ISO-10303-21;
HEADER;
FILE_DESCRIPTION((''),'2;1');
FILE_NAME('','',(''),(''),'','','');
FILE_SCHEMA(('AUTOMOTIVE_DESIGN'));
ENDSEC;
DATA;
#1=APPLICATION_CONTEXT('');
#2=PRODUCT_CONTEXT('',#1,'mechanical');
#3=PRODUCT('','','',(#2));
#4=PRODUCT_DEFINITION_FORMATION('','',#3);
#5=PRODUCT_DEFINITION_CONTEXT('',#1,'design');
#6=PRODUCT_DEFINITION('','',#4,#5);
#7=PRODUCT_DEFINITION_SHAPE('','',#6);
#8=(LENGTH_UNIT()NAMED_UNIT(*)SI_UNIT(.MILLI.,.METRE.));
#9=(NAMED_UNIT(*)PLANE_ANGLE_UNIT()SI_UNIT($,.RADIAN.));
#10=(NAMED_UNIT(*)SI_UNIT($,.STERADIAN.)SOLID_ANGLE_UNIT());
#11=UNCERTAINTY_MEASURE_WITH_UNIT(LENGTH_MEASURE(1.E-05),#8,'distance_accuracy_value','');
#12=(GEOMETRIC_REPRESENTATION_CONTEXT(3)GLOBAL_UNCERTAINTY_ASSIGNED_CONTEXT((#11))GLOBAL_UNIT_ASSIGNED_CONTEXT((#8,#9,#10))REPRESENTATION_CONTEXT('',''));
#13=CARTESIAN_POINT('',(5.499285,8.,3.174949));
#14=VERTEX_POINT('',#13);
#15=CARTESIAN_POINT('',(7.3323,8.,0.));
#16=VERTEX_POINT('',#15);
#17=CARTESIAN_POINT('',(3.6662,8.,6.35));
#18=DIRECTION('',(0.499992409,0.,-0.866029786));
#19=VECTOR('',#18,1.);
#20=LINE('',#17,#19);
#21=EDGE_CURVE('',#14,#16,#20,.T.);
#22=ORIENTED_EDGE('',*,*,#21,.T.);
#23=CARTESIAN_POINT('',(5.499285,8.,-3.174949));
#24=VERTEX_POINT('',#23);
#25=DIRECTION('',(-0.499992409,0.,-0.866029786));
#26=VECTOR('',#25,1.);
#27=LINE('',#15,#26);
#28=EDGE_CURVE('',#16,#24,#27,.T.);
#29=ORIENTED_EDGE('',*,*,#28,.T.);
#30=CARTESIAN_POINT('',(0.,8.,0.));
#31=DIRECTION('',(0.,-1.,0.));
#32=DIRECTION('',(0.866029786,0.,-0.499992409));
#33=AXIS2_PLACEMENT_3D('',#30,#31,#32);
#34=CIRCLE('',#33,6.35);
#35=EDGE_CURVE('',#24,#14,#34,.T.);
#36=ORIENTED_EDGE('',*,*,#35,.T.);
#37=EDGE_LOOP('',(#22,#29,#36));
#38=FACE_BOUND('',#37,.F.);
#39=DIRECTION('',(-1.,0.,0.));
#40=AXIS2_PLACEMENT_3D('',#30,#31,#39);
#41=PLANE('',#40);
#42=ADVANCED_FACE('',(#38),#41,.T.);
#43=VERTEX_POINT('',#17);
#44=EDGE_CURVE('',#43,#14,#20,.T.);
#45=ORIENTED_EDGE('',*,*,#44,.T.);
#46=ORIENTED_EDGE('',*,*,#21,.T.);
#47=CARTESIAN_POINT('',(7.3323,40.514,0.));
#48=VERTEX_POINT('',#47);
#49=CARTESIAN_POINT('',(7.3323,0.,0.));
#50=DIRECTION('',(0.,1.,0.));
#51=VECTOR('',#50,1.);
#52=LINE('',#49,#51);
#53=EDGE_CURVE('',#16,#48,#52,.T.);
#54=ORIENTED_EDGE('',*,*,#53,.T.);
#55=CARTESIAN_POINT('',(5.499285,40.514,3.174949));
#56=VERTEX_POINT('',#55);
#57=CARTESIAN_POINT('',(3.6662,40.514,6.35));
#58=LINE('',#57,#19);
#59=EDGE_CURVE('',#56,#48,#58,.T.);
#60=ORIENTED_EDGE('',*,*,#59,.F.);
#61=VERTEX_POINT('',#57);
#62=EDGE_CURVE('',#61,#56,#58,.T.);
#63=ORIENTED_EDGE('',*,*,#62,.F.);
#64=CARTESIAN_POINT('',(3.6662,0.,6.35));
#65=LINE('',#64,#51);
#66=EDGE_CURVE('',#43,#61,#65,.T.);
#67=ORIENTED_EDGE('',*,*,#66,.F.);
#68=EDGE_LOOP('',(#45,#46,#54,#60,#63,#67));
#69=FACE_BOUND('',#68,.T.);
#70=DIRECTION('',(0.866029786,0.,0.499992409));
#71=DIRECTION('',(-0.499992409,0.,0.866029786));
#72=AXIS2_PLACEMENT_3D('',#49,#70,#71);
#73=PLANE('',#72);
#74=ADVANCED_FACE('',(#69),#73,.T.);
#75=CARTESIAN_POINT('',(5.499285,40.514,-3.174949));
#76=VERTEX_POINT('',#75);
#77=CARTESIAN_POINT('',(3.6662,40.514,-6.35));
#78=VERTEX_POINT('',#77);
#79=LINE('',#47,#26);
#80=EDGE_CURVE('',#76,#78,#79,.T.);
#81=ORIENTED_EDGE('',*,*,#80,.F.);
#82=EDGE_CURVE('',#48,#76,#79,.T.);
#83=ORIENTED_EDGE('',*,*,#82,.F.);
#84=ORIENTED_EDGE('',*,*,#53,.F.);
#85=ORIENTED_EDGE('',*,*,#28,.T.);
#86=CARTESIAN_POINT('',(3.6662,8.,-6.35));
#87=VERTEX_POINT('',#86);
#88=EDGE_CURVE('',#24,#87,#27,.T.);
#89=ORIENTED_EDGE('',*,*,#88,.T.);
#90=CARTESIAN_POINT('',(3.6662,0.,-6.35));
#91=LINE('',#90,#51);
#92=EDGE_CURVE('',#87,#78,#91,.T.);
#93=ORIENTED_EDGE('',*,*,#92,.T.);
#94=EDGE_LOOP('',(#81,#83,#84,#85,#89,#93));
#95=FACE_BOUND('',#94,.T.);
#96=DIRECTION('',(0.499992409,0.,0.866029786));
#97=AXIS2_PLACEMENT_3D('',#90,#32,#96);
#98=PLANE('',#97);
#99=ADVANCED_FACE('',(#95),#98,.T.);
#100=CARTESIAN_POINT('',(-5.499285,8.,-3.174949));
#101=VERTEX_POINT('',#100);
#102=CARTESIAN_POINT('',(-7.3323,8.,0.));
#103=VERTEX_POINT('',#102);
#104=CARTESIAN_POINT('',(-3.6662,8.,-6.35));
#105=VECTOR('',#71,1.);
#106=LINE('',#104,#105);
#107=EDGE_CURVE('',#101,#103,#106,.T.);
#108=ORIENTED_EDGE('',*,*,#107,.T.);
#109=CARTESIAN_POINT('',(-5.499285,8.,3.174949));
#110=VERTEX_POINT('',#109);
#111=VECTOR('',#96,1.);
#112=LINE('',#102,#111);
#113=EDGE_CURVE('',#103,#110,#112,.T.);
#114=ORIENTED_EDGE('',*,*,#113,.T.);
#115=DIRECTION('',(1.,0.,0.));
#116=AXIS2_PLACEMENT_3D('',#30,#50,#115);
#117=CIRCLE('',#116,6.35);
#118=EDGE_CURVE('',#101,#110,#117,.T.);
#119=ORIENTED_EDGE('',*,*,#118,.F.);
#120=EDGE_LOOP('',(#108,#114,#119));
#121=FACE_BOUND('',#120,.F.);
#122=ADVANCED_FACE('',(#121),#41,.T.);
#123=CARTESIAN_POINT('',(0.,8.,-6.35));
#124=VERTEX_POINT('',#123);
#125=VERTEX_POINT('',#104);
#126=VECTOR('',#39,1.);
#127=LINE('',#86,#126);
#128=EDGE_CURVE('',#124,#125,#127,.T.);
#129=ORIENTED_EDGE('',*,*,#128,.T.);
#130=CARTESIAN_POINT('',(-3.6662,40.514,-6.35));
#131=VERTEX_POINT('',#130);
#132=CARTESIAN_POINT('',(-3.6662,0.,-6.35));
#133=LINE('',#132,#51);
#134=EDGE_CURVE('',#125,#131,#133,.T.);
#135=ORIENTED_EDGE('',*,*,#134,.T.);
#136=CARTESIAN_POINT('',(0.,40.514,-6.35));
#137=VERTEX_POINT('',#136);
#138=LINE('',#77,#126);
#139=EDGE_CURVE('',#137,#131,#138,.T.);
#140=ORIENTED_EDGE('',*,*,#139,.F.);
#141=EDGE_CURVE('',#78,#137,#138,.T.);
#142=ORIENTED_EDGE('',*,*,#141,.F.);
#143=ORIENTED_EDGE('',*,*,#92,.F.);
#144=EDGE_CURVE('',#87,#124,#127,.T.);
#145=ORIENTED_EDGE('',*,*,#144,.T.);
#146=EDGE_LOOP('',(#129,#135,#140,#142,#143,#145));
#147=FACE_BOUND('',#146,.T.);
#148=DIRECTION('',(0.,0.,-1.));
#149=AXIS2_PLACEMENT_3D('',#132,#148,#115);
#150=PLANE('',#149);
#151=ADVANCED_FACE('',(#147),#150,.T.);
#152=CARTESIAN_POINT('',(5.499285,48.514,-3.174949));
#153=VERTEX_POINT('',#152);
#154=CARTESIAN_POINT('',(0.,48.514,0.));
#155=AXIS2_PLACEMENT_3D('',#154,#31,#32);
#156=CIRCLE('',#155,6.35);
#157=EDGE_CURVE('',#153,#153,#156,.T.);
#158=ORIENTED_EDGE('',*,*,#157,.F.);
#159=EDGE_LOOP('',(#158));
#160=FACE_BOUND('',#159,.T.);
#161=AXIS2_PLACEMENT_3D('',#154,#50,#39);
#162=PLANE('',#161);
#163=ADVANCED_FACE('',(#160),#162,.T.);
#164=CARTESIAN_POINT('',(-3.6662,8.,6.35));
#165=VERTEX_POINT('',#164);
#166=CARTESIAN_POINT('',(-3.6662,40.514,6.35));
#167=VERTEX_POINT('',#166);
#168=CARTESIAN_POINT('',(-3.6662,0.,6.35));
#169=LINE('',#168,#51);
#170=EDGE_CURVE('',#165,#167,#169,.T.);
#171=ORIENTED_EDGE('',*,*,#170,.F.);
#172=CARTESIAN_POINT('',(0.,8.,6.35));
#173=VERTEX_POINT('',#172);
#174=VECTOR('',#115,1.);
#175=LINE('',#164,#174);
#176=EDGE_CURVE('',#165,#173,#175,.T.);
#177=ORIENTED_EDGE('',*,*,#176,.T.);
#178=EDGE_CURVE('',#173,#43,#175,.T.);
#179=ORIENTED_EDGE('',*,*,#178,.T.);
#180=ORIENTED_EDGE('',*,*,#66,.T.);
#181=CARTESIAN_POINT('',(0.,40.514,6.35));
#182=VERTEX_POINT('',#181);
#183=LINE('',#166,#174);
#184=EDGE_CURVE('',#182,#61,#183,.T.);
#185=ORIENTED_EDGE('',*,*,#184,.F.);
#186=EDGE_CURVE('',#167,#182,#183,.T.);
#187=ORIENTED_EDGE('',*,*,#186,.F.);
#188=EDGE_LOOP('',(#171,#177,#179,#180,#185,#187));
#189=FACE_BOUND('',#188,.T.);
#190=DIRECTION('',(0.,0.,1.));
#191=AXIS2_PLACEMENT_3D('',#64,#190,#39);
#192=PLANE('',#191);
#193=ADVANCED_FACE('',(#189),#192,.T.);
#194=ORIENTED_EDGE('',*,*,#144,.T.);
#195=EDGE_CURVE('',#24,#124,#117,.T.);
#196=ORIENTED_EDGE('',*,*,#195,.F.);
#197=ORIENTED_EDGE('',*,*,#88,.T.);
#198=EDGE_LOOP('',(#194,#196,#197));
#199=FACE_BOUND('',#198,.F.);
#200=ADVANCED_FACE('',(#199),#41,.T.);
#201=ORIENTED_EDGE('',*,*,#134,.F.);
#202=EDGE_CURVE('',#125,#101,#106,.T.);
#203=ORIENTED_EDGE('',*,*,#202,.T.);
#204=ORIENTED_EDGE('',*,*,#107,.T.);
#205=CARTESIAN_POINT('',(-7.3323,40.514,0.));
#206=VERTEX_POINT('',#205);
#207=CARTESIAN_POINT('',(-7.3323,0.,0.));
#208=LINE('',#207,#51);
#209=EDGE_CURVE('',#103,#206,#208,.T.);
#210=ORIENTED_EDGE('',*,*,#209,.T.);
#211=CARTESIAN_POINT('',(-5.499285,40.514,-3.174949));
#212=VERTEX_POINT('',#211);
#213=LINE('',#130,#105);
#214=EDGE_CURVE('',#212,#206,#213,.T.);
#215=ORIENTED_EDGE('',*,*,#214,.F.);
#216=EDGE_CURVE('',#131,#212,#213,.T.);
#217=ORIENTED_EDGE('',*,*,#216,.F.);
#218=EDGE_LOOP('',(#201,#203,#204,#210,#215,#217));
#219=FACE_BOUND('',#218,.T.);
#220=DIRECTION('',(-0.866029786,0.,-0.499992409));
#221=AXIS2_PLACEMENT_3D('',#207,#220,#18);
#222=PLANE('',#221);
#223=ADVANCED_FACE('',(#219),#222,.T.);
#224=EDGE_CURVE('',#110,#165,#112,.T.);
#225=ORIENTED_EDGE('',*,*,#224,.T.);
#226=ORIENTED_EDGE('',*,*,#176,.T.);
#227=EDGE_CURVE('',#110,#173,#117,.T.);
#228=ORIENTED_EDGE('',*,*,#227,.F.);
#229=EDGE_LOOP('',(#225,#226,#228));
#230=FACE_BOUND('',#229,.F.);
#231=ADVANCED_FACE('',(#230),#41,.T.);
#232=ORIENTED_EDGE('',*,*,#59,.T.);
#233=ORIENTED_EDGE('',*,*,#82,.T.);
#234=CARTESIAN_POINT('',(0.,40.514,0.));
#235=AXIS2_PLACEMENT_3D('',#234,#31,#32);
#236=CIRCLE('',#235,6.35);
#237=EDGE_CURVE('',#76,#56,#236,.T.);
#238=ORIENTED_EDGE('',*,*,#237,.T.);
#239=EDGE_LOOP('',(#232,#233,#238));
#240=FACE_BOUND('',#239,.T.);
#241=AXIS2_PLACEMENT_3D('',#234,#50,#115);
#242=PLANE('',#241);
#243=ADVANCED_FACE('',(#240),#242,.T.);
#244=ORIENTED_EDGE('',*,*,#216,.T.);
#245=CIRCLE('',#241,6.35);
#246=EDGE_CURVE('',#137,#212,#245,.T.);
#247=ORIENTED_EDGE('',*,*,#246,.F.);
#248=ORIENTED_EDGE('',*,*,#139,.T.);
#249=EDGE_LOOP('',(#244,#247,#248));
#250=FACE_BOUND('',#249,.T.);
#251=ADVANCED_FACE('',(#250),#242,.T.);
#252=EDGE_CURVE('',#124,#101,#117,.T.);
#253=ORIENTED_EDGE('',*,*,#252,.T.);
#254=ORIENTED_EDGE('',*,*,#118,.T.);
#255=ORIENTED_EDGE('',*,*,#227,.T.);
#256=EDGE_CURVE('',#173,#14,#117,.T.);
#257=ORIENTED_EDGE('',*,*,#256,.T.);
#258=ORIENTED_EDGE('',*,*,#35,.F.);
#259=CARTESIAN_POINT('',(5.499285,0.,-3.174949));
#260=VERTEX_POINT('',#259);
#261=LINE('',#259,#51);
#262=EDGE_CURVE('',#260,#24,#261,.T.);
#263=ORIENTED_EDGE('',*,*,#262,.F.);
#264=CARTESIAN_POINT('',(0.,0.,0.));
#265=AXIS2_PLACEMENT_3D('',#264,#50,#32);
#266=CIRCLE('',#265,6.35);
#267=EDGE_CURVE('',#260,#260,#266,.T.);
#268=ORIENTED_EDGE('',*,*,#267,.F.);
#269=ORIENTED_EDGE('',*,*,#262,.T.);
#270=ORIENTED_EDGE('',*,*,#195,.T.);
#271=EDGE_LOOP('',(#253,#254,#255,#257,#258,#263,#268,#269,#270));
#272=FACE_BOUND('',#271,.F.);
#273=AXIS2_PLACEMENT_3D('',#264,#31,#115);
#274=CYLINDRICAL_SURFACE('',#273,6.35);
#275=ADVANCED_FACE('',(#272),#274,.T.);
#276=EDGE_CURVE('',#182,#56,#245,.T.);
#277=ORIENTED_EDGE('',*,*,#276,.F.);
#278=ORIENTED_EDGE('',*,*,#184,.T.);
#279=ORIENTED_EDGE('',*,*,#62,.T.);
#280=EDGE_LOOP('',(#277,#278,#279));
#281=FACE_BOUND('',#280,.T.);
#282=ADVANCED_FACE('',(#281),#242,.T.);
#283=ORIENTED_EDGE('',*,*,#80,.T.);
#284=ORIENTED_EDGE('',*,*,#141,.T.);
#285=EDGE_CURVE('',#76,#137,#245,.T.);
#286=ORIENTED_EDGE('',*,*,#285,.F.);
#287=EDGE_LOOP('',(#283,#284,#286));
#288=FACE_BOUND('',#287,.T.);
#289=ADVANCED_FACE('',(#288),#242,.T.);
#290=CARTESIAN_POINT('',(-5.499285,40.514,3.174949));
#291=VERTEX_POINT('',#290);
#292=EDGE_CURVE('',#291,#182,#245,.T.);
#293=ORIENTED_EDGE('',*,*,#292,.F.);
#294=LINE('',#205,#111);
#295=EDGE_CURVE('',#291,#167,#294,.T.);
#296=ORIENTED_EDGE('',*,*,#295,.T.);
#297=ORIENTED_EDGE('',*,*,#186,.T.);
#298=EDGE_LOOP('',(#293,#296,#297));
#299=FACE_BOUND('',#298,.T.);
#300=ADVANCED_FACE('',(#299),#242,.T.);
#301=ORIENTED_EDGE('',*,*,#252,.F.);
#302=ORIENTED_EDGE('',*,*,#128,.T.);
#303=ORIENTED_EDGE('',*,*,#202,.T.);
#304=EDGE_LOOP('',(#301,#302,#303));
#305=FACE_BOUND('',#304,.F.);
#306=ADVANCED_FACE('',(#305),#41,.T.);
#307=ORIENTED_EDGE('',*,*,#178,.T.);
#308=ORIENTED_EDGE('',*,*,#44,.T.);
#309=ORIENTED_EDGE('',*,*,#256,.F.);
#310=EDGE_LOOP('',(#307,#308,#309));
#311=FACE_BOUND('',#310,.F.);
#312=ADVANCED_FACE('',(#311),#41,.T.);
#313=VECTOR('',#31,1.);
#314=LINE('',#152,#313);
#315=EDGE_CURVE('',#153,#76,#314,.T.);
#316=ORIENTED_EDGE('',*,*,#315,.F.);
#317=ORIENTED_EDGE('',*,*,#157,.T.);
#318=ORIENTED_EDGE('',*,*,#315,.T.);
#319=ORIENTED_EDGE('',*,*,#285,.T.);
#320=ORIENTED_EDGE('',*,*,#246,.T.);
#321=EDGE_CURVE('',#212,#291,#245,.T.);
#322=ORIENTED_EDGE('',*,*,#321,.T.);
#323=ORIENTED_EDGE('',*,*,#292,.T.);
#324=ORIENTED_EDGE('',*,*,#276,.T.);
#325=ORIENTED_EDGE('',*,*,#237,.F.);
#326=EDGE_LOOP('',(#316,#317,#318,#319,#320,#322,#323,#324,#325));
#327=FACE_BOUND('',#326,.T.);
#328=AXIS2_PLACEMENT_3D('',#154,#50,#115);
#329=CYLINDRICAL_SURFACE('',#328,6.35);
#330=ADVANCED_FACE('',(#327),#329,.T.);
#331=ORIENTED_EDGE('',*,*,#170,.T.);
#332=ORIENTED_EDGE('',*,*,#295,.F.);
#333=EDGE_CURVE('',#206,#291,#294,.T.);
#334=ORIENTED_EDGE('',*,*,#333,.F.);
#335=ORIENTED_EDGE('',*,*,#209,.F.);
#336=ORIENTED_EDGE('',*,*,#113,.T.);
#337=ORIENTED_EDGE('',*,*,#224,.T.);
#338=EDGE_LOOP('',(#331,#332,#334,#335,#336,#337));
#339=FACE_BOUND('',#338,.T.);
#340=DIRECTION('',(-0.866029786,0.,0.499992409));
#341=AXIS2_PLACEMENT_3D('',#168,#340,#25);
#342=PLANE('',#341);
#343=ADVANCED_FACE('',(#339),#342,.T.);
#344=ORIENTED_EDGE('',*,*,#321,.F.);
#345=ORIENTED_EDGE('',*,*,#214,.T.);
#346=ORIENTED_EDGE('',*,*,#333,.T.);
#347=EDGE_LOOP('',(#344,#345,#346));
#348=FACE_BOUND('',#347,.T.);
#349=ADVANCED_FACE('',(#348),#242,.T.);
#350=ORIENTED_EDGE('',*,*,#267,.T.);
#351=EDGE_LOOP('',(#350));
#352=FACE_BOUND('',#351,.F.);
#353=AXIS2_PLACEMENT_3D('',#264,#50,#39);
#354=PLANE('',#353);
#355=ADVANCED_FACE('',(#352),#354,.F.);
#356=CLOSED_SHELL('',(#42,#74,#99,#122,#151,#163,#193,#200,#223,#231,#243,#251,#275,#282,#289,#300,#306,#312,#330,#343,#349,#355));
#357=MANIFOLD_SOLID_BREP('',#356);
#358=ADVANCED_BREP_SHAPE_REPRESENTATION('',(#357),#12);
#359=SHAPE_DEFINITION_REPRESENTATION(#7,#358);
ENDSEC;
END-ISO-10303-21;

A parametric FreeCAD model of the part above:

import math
import FreeCAD as App
import Part
import Sketcher

V = App.Vector
Q = App.Units.Quantity


def add_polygon(sketch, points):
    """Adds a closed chain of lines whose ends are joined by coincident constraints."""
    first, n = sketch.GeometryCount, len(points)
    for a, b in zip(points, points[1:] + points[:1]):
        sketch.addGeometry(Part.LineSegment(App.Vector(*a, 0), App.Vector(*b, 0)), False)
    for i in range(n):
        sketch.addConstraint(Sketcher.Constraint("Coincident", first + i, 2, first + (i + 1) % n, 1))

doc = App.newDocument("Part")
params = doc.addObject("Spreadsheet::Sheet", "Params")
for row, (alias, value) in enumerate([
    ("pad1_length", "1.91 in"),
    ("sketch2_radius", "0.25 in"),
    ("pocket1_length", "8 mm"),
], start=1):
    params.set(f"A{row}", alias)
    params.set(f"B{row}", "=" + value)
    params.setAlias(f"B{row}", alias)

body = doc.addObject("PartDesign::Body", "Body")

# Sketch on XZ plane
sketch1 = body.newObject("Sketcher::SketchObject", "Sketch")
sketch1.AttachmentSupport = (doc.getObject("XZ_Plane"), [""])
sketch1.MapMode = "FlatFace"
add_polygon(sketch1, [(-4, -6), (-7, 0), (-4, 6), (4, 6), (7, 0), (4, -6)])  # lines 0-5
sketch1.addConstraint([
    Sketcher.Constraint("Horizontal", 2),
    Sketcher.Constraint("Horizontal", 5),
    Sketcher.Constraint("Symmetric", 0, 2, 3, 2, -1, 1),
    Sketcher.Constraint("Symmetric", 1, 2, 4, 2, -1, 1),
    Sketcher.Constraint("PointOnObject", 0, 2, -1),
    Sketcher.Constraint("Parallel", 0, 3),
    Sketcher.Constraint("Vertical", 2, 2, 4, 2),
    Sketcher.Constraint("DistanceY", 4, 2, 2, 2, Q("0.5 in")),
    Sketcher.Constraint("Angle", 0, Q("119.9995 deg")),
    Sketcher.Constraint("DistanceX", 0, 2, 2, 2, Q("0.433 in")),
])
pad1 = body.newObject("PartDesign::Pad", "Pad")
pad1.Profile = sketch1
pad1.setExpression("Length", "Params.pad1_length")
pad1.Reversed = True

# Sketch on XZ plane
sketch2 = body.newObject("Sketcher::SketchObject", "Sketch001")
sketch2.AttachmentSupport = (doc.getObject("XZ_Plane"), [""])
sketch2.MapMode = "FlatFace"
sketch2.AttachmentOffset = App.Placement(V(0, 0, -1.91 * 25.4), App.Rotation())
sketch2.addGeometry([
    Part.ArcOfCircle(Part.Circle(V(0, 0, 0), V(0, 0, 1), 6.3), math.radians(-30), math.radians(30)),  # 0
    Part.LineSegment(V(5.5, 3.2, 0), V(7.3, 0, 0)),  # 1
    Part.LineSegment(V(7.3, 0, 0), V(5.5, -3.2, 0)),  # 2
    Part.ArcOfCircle(Part.Circle(V(0, 0, 0), V(0, 0, 1), 6.3), math.radians(-90), math.radians(-30)),  # 3
    Part.LineSegment(V(5.5, -3.2, 0), V(3.7, -6.3, 0)),  # 4
    Part.LineSegment(V(3.7, -6.3, 0), V(0, -6.3, 0)),  # 5
    Part.LineSegment(V(3.7, 6.3, 0), V(5.5, 3.2, 0)),  # 6
    Part.ArcOfCircle(Part.Circle(V(0, 0, 0), V(0, 0, 1), 6.3), math.radians(30), math.radians(90)),  # 7
    Part.LineSegment(V(0, 6.3, 0), V(3.7, 6.3, 0)),  # 8
    Part.ArcOfCircle(Part.Circle(V(0, 0, 0), V(0, 0, 1), 6.3), math.radians(-150), math.radians(-90)),  # 9
    Part.LineSegment(V(0, -6.3, 0), V(-3.7, -6.3, 0)),  # 10
    Part.LineSegment(V(-3.7, -6.3, 0), V(-5.5, -3.2, 0)),  # 11
    Part.LineSegment(V(-3.7, 6.3, 0), V(0, 6.3, 0)),  # 12
    Part.ArcOfCircle(Part.Circle(V(0, 0, 0), V(0, 0, 1), 6.3), math.radians(90), math.radians(150)),  # 13
    Part.LineSegment(V(-5.5, 3.2, 0), V(-3.7, 6.3, 0)),  # 14
    Part.ArcOfCircle(Part.Circle(V(0, 0, 0), V(0, 0, 1), 6.3), math.radians(150), math.radians(210)),  # 15
    Part.LineSegment(V(-5.5, -3.2, 0), V(-7.3, 0, 0)),  # 16
    Part.LineSegment(V(-7.3, 0, 0), V(-5.5, 3.2, 0)),  # 17
], False)
sketch2.addConstraint([
    Sketcher.Constraint("Tangent", 0, 2, 1, 1),
    Sketcher.Constraint("Coincident", 1, 2, 2, 1),
    Sketcher.Constraint("Tangent", 2, 2, 0, 1),
    Sketcher.Constraint("Tangent", 3, 2, 4, 1),
    Sketcher.Constraint("Coincident", 4, 2, 5, 1),
    Sketcher.Constraint("Tangent", 5, 2, 3, 1),
    Sketcher.Constraint("Tangent", 6, 2, 7, 1),
    Sketcher.Constraint("Tangent", 7, 2, 8, 1),
    Sketcher.Constraint("Coincident", 8, 2, 6, 1),
    Sketcher.Constraint("Tangent", 9, 2, 10, 1),
    Sketcher.Constraint("Coincident", 10, 2, 11, 1),
    Sketcher.Constraint("Tangent", 11, 2, 9, 1),
    Sketcher.Constraint("Tangent", 12, 2, 13, 1),
    Sketcher.Constraint("Tangent", 13, 2, 14, 1),
    Sketcher.Constraint("Coincident", 14, 2, 12, 1),
    Sketcher.Constraint("Tangent", 15, 2, 16, 1),
    Sketcher.Constraint("Coincident", 16, 2, 17, 1),
    Sketcher.Constraint("Tangent", 17, 2, 15, 1),
    Sketcher.Constraint("Horizontal", 5),
    Sketcher.Constraint("Horizontal", 8),
    Sketcher.Constraint("Horizontal", 10),
    Sketcher.Constraint("Horizontal", 12),
    Sketcher.Constraint("Coincident", 0, 3, -1, 1),
    Sketcher.Constraint("Coincident", 3, 3, -1, 1),
    Sketcher.Constraint("Coincident", 7, 3, -1, 1),
    Sketcher.Constraint("Coincident", 9, 3, -1, 1),
    Sketcher.Constraint("Coincident", 13, 3, -1, 1),
    Sketcher.Constraint("Coincident", 15, 3, -1, 1),
    Sketcher.Constraint("Coincident", 3, 2, 2, 2),
    Sketcher.Constraint("Coincident", 6, 2, 0, 2),
    Sketcher.Constraint("Coincident", 15, 2, 11, 2),
    Sketcher.Constraint("Coincident", 17, 2, 13, 2),
    Sketcher.Constraint("Equal", 7, 9),
    Sketcher.Constraint("Symmetric", 1, 2, 16, 2, -1, 1),
    Sketcher.Constraint("PointOnObject", 1, 2, -1),
    Sketcher.Constraint("Equal", 2, 4),
    Sketcher.Constraint("Radius", 0, Q("0.25 in")),
])
sketch2.setExpression("Constraints[36]", "Params.sketch2_radius")
pocket1 = body.newObject("PartDesign::Pocket", "Pocket")
pocket1.Profile = sketch2
pocket1.setExpression("Length", "Params.pocket1_length")
pocket1.Reversed = True
doc.recompute()

datumplane = body.newObject("PartDesign::Plane", "DatumPlane")
datumplane.AttachmentSupport = (doc.getObject("XZ_Plane"), [""])
datumplane.MapMode = "FlatFace"
datumplane.AttachmentOffset = App.Placement(V(0, 0, -0.955 * 25.4), App.Rotation())
mirrored = body.newObject("PartDesign::Mirrored", "Mirrored")
mirrored.Originals = [pocket1]
mirrored.MirrorPlane = (datumplane, [""])
body.Tip = mirrored

doc.recompute()
